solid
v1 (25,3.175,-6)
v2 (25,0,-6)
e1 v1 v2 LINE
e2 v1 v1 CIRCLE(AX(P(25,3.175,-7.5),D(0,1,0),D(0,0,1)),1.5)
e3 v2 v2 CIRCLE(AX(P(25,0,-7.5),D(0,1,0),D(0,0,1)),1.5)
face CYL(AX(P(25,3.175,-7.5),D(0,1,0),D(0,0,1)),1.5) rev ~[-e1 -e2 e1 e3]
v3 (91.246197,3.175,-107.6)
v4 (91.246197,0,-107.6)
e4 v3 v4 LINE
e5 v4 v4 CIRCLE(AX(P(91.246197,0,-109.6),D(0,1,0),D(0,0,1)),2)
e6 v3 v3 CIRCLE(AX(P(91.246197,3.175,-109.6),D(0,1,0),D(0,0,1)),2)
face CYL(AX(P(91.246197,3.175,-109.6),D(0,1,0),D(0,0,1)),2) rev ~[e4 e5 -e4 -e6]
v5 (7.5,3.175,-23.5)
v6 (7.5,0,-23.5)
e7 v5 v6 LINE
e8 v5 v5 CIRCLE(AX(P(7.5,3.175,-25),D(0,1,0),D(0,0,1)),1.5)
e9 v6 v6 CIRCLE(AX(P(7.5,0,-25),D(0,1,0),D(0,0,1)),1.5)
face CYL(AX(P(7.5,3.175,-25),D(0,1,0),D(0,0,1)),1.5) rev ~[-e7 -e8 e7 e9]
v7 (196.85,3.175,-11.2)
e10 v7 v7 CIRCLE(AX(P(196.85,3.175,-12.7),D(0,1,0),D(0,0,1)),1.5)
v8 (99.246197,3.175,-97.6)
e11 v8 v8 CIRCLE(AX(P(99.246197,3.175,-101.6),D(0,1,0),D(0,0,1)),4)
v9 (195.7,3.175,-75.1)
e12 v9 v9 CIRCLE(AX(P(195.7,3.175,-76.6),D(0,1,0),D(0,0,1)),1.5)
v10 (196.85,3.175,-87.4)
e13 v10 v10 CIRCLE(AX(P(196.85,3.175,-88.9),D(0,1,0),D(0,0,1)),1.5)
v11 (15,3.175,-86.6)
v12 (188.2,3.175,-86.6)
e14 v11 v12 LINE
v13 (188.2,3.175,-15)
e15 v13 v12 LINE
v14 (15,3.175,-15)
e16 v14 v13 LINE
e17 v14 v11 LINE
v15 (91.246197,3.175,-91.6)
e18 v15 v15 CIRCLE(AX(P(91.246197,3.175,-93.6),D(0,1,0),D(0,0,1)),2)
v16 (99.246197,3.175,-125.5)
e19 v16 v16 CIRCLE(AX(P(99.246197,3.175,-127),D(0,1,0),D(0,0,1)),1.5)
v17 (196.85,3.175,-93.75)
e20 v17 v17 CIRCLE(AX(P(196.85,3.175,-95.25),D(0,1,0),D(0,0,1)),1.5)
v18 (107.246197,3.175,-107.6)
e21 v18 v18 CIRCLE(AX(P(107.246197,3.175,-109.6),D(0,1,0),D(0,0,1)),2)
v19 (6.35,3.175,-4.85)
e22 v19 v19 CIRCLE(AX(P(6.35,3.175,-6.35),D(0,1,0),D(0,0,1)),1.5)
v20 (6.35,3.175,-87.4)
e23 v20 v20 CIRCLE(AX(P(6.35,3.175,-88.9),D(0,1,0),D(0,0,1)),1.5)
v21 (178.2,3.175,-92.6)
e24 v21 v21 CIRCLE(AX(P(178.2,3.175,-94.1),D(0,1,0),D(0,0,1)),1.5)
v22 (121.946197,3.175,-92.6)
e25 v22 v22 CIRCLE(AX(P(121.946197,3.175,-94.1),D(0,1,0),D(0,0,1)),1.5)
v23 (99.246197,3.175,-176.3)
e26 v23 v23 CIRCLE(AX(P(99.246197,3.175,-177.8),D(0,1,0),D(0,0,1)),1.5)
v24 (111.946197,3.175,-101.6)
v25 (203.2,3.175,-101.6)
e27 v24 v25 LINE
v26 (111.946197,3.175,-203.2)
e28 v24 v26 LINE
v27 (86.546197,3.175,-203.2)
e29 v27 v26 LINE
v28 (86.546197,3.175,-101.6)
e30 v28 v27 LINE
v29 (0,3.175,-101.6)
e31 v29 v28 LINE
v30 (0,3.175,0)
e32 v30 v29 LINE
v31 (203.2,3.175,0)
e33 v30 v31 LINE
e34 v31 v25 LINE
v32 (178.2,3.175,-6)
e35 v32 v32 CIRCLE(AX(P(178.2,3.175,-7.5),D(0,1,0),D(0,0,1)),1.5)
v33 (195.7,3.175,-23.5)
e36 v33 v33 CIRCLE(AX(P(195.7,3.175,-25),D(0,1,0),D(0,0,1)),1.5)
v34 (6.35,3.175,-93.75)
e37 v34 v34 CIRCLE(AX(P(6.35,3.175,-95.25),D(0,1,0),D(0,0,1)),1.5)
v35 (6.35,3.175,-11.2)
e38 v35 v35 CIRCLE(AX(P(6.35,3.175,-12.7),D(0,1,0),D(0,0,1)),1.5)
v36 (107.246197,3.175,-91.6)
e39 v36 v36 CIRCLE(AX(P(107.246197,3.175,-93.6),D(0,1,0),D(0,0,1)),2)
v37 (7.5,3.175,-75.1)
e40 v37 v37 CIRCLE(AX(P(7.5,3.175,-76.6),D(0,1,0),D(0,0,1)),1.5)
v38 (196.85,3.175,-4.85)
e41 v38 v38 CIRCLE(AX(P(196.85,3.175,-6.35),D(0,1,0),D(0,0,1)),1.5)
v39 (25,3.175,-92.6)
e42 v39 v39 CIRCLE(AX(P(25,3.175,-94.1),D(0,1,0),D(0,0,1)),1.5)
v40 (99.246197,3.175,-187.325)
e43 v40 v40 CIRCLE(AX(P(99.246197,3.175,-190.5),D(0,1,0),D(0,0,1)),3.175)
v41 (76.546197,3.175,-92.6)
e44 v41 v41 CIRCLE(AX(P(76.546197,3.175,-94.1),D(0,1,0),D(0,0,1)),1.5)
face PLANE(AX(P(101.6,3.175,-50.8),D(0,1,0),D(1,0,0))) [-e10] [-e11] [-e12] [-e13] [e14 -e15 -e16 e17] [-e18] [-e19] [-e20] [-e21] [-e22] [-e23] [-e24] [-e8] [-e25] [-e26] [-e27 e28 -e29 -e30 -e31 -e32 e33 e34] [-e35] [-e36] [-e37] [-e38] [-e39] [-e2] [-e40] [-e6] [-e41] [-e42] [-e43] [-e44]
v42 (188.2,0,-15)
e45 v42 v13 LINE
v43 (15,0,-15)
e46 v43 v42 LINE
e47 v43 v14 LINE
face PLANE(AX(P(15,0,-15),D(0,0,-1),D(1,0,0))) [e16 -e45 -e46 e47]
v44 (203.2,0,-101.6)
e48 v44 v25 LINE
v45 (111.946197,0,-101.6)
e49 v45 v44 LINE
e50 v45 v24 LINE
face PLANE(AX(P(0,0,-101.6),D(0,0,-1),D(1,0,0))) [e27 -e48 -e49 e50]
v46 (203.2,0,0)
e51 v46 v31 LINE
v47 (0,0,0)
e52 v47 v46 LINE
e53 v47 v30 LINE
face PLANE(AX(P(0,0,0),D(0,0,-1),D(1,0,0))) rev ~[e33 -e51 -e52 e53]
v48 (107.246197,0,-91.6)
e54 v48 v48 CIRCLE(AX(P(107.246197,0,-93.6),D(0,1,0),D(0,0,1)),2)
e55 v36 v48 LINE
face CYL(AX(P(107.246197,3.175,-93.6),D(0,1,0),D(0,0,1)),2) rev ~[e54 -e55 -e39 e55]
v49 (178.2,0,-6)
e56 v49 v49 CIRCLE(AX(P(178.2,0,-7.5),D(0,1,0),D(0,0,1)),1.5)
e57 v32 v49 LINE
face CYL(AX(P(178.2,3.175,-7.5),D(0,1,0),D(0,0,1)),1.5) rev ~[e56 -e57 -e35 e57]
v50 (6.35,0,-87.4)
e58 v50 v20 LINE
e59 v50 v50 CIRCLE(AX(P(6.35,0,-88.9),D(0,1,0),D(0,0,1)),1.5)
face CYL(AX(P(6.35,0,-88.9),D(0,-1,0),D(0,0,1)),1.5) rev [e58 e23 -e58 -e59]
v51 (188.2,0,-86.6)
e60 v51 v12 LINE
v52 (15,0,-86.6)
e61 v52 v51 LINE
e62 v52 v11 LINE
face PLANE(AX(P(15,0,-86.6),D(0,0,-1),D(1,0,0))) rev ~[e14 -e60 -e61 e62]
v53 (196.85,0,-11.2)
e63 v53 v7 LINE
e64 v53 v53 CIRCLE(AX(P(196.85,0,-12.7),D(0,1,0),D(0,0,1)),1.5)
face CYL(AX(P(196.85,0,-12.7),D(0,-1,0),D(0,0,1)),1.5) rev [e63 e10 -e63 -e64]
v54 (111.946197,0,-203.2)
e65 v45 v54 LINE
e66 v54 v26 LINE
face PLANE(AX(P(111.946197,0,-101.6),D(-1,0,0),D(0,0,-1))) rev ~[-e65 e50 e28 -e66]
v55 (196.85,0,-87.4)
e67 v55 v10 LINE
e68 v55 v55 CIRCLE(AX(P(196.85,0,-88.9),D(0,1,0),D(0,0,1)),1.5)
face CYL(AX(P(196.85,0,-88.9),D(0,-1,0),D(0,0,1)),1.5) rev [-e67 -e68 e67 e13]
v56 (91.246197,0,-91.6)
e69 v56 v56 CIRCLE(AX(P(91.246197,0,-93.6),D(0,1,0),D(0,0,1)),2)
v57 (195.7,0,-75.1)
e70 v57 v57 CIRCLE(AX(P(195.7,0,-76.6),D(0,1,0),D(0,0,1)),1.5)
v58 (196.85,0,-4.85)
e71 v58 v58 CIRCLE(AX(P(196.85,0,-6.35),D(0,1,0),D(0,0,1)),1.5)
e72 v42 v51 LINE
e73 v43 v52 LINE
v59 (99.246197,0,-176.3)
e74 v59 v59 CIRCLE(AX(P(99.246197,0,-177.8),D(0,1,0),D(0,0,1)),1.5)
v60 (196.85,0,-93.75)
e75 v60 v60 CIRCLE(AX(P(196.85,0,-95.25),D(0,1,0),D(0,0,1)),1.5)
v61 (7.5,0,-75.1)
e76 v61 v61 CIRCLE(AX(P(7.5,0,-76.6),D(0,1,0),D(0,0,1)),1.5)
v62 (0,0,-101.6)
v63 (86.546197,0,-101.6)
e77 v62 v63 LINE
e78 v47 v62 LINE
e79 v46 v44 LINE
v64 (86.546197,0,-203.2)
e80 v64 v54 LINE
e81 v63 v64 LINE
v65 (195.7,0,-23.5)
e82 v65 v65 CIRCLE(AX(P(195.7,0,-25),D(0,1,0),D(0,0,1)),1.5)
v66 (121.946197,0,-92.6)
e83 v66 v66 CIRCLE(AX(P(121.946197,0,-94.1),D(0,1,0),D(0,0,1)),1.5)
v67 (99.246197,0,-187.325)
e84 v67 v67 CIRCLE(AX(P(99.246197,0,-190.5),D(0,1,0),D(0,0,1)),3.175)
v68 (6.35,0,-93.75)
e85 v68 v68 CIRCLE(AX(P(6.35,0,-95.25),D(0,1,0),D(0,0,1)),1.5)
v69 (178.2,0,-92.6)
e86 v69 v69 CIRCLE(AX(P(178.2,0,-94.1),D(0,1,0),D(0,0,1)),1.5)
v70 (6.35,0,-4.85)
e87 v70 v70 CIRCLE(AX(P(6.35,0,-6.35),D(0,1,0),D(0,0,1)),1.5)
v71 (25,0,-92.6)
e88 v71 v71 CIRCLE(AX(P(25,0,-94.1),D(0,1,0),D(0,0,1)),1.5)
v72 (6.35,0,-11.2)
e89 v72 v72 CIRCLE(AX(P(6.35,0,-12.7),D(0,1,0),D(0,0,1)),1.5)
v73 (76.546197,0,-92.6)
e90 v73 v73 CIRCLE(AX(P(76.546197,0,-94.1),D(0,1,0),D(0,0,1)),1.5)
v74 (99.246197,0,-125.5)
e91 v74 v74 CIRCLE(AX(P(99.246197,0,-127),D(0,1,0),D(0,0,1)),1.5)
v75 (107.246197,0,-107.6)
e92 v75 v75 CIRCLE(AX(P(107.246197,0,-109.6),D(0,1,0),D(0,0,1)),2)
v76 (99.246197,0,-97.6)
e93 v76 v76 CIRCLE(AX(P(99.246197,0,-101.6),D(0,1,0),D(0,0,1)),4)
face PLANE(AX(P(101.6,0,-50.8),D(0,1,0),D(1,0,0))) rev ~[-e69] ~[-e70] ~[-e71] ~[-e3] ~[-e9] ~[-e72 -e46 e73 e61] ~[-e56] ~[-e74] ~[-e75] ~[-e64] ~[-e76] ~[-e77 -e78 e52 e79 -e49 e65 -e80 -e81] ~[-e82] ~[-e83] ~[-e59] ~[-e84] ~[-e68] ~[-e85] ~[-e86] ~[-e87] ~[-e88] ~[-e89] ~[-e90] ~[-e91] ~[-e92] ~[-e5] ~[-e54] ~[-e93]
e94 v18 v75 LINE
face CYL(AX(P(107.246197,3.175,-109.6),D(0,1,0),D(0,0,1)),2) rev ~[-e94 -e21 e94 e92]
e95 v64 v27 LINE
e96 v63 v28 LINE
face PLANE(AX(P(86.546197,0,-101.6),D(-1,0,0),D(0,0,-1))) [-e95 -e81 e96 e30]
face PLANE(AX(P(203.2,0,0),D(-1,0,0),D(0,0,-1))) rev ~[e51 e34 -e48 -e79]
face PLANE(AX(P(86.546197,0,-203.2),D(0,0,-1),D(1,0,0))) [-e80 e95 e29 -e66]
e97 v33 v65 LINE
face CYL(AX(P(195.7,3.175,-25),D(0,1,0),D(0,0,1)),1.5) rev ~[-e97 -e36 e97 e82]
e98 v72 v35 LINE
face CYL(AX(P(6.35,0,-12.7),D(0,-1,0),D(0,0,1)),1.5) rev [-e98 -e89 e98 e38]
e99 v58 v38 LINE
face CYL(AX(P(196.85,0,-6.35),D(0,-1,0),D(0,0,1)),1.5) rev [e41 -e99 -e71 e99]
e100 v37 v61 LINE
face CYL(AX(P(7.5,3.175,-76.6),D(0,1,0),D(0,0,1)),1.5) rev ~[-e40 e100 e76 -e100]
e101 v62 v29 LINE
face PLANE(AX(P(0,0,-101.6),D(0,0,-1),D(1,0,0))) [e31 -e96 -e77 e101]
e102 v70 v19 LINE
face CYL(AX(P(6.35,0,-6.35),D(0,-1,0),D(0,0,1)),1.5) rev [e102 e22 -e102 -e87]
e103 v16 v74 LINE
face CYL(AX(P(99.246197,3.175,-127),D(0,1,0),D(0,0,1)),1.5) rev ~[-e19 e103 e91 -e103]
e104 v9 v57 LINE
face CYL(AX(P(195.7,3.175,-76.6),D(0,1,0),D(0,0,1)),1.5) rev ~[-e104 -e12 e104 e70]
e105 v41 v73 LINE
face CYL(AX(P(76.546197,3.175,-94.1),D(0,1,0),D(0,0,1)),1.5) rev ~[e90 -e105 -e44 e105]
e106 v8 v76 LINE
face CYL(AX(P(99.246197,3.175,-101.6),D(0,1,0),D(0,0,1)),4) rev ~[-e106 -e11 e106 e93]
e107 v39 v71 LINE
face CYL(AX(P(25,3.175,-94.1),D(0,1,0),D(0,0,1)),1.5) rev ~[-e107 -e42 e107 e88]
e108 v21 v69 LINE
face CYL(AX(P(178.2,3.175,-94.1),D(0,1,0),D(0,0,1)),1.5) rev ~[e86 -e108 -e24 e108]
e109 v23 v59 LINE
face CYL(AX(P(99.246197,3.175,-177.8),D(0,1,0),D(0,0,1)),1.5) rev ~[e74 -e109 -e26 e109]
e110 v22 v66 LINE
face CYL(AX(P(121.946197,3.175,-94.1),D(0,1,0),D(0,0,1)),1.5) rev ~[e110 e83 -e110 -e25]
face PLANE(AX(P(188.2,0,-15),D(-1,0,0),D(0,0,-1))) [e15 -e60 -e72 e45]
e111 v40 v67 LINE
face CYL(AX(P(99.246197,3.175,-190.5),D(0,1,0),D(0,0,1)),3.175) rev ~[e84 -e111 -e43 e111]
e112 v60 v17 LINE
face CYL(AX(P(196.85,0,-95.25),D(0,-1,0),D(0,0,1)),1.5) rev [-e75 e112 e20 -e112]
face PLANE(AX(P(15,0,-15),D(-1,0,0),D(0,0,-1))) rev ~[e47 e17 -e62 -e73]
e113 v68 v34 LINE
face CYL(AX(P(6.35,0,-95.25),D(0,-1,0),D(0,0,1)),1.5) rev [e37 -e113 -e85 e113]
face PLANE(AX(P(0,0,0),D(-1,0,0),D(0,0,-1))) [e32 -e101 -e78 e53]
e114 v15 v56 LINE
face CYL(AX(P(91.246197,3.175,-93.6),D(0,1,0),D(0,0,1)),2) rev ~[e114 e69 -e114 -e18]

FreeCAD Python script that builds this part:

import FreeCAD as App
import Part
import Sketcher
from FreeCAD import Vector

doc = App.newDocument("Part")
body = doc.addObject("PartDesign::Body", "Body")

# Sketch on XZ plane
sketch1 = body.newObject("Sketcher::SketchObject", "Sketch")
sketch1.AttachmentSupport = (doc.getObject("XZ_Plane"), [""])
sketch1.MapMode = "FlatFace"
sketch1.addGeometry([
    Part.LineSegment(Vector(0, -101.6, 0), Vector(0, 0, 0)),  # 0
    Part.LineSegment(Vector(0, 0, 0), Vector(203.2, 0, 0)),  # 1
    Part.LineSegment(Vector(203.2, 0, 0), Vector(203.2, -101.6, 0)),  # 2
    Part.LineSegment(Vector(203.2, -101.6, 0), Vector(111.9, -101.6, 0)),  # 3
    Part.LineSegment(Vector(111.9, -101.6, 0), Vector(111.9, -203.2, 0)),  # 4
    Part.LineSegment(Vector(111.9, -203.2, 0), Vector(86.5, -203.2, 0)),  # 5
    Part.LineSegment(Vector(86.5, -203.2, 0), Vector(86.5, -101.6, 0)),  # 6
    Part.LineSegment(Vector(86.5, -101.6, 0), Vector(0, -101.6, 0)),  # 7
    Part.Circle(Vector(6.3, -6.3, 0), Vector(0, 0, 1), 1.5),  # 8
    Part.Circle(Vector(6.3, -12.7, 0), Vector(0, 0, 1), 1.5),  # 9
    Part.Circle(Vector(196.8, -6.3, 0), Vector(0, 0, 1), 1.5),  # 10
    Part.Circle(Vector(196.8, -12.7, 0), Vector(0, 0, 1), 1.5),  # 11
    Part.LineSegment(Vector(188.2, -15, 0), Vector(15, -15, 0)),  # 12
    Part.LineSegment(Vector(15, -15, 0), Vector(15, -86.6, 0)),  # 13
    Part.LineSegment(Vector(15, -86.6, 0), Vector(188.2, -86.6, 0)),  # 14
    Part.LineSegment(Vector(188.2, -86.6, 0), Vector(188.2, -15, 0)),  # 15
    Part.Circle(Vector(6.3, -88.9, 0), Vector(0, 0, 1), 1.5),  # 16
    Part.Circle(Vector(6.3, -95.2, 0), Vector(0, 0, 1), 1.5),  # 17
    Part.Circle(Vector(196.8, -88.9, 0), Vector(0, 0, 1), 1.5),  # 18
    Part.Circle(Vector(196.8, -95.2, 0), Vector(0, 0, 1), 1.5),  # 19
], False)
sketch1.addConstraint([
    Sketcher.Constraint("Coincident", 0, 2, 1, 1),
    Sketcher.Constraint("Coincident", 1, 2, 2, 1),
    Sketcher.Constraint("Coincident", 2, 2, 3, 1),
    Sketcher.Constraint("Coincident", 3, 2, 4, 1),
    Sketcher.Constraint("Coincident", 4, 2, 5, 1),
    Sketcher.Constraint("Coincident", 5, 2, 6, 1),
    Sketcher.Constraint("Coincident", 6, 2, 7, 1),
    Sketcher.Constraint("Coincident", 7, 2, 0, 1),
    Sketcher.Constraint("Coincident", 12, 2, 13, 1),
    Sketcher.Constraint("Coincident", 13, 2, 14, 1),
    Sketcher.Constraint("Coincident", 14, 2, 15, 1),
    Sketcher.Constraint("Coincident", 15, 2, 12, 1),
    Sketcher.Constraint("Vertical", 0),
    Sketcher.Constraint("Horizontal", 1),
    Sketcher.Constraint("Vertical", 2),
    Sketcher.Constraint("Horizontal", 3),
    Sketcher.Constraint("Vertical", 4),
    Sketcher.Constraint("Horizontal", 5),
    Sketcher.Constraint("Vertical", 6),
    Sketcher.Constraint("Horizontal", 7),
    Sketcher.Constraint("Horizontal", 12),
    Sketcher.Constraint("Vertical", 13),
    Sketcher.Constraint("Horizontal", 14),
    Sketcher.Constraint("Vertical", 15),
    Sketcher.Constraint("Coincident", 0, 2, -1, 1),
    Sketcher.Constraint("Equal", 8, 9),
    Sketcher.Constraint("Equal", 9, 10),
    Sketcher.Constraint("Equal", 10, 11),
    Sketcher.Constraint("Equal", 11, 16),
    Sketcher.Constraint("Equal", 16, 17),
    Sketcher.Constraint("Equal", 17, 18),
    Sketcher.Constraint("Equal", 18, 19),
    Sketcher.Constraint("Horizontal", 8, 3, 10, 3),
    Sketcher.Constraint("Horizontal", 9, 3, 11, 3),
    Sketcher.Constraint("Horizontal", 16, 3, 18, 3),
    Sketcher.Constraint("Horizontal", 17, 3, 19, 3),
    Sketcher.Constraint("Horizontal", 3, 2, 6, 2),
    Sketcher.Constraint("Vertical", 8, 3, 9, 3),
    Sketcher.Constraint("Vertical", 10, 3, 11, 3),
    Sketcher.Constraint("Vertical", 9, 3, 16, 3),
    Sketcher.Constraint("Vertical", 16, 3, 17, 3),
    Sketcher.Constraint("Vertical", 11, 3, 18, 3),
    Sketcher.Constraint("Vertical", 18, 3, 19, 3),
    Sketcher.Constraint("Equal", 2, 4),
    Sketcher.Constraint("Diameter", 8, 3.0),
    Sketcher.Constraint("DistanceX", 1, 1, 1, 2, 203.2),
    Sketcher.Constraint("DistanceX", 5, 2, 5, 1, 25.4),
    Sketcher.Constraint("DistanceX", 12, 2, 12, 1, 173.2),
    Sketcher.Constraint("DistanceY", 0, 1, 0, 2, 101.6),
    Sketcher.Constraint("DistanceY", 13, 2, 13, 1, 71.6),
    Sketcher.Constraint("DistanceX", -1, 1, 12, 2, 15.0),
    Sketcher.Constraint("DistanceY", 12, 2, -1, 1, 15.0),
    Sketcher.Constraint("DistanceY", 9, 3, -1, 1, 12.7),
    Sketcher.Constraint("DistanceY", 16, 3, -1, 1, 88.9),
    Sketcher.Constraint("DistanceX", 8, 3, 10, 3, 190.5),
    Sketcher.Constraint("DistanceY", 17, 3, 8, 3, 88.9),
    Sketcher.Constraint("DistanceX", -1, 1, 8, 3, 6.35),
    Sketcher.Constraint("DistanceY", 8, 3, -1, 1, 6.35),
    Sketcher.Constraint("DistanceX", 3, 2, 3, 1, 91.253803),
])
pad1 = body.newObject("PartDesign::Pad", "Pad")
pad1.Profile = sketch1
pad1.Length = 3.175
pad1.Reversed = True

# Sketch on XZ plane
sketch2 = body.newObject("Sketcher::SketchObject", "Sketch001")
sketch2.AttachmentSupport = (doc.getObject("XZ_Plane"), [""])
sketch2.MapMode = "FlatFace"
sketch2.AttachmentOffset = App.Placement(Vector(0, 0, -3.175), App.Rotation())
sketch2.addGeometry([
    Part.Circle(Vector(91.2, -109.6, 0), Vector(0, 0, 1), 2),  # 0
    Part.Circle(Vector(107.2, -109.6, 0), Vector(0, 0, 1), 2),  # 1
    Part.Circle(Vector(91.2, -93.6, 0), Vector(0, 0, 1), 2),  # 2
    Part.Circle(Vector(107.2, -93.6, 0), Vector(0, 0, 1), 2),  # 3
    Part.Circle(Vector(99.2, -101.6, 0), Vector(0, 0, 1), 4),  # 4
], False)
sketch2.addConstraint([
    Sketcher.Constraint("Equal", 0, 1),
    Sketcher.Constraint("Equal", 1, 2),
    Sketcher.Constraint("Equal", 2, 3),
    Sketcher.Constraint("Horizontal", 0, 3, 1, 3),
    Sketcher.Constraint("Horizontal", 2, 3, 3, 3),
    Sketcher.Constraint("Vertical", 0, 3, 2, 3),
    Sketcher.Constraint("Vertical", 1, 3, 3, 3),
    Sketcher.Constraint("Diameter", 0, 4.0),
    Sketcher.Constraint("Diameter", 4, 8.0),
    Sketcher.Constraint("DistanceX", 0, 3, 1, 3, 16.0),
    Sketcher.Constraint("DistanceY", 0, 3, 2, 3, 16.0),
    Sketcher.Constraint("DistanceX", 0, 3, 4, 3, 8.0),
    Sketcher.Constraint("DistanceY", 0, 3, 4, 3, 8.0),
    Sketcher.Constraint("DistanceY", 0, 3, -1, 1, 109.6),
    Sketcher.Constraint("DistanceX", -1, 1, 0, 3, 91.246197),
])
pocket1 = body.newObject("PartDesign::Pocket", "Pocket")
pocket1.Profile = sketch2
pocket1.Length = 3.175
pocket1.Reversed = True

# Sketch on XZ plane
sketch3 = body.newObject("Sketcher::SketchObject", "Sketch002")
sketch3.AttachmentSupport = (doc.getObject("XZ_Plane"), [""])
sketch3.MapMode = "FlatFace"
sketch3.AttachmentOffset = App.Placement(Vector(0, 0, -3.175), App.Rotation())
sketch3.addGeometry([
    Part.Circle(Vector(178.2, -94.1, 0), Vector(0, 0, 1), 1.5),  # 0
    Part.Circle(Vector(25, -94.1, 0), Vector(0, 0, 1), 1.5),  # 1
    Part.Circle(Vector(76.5, -94.1, 0), Vector(0, 0, 1), 1.5),  # 2
    Part.Circle(Vector(121.9, -94.1, 0), Vector(0, 0, 1), 1.5),  # 3
    Part.Circle(Vector(178.2, -7.5, 0), Vector(0, 0, 1), 1.5),  # 4
    Part.Circle(Vector(25, -7.5, 0), Vector(0, 0, 1), 1.5),  # 5
    Part.Circle(Vector(195.7, -76.6, 0), Vector(0, 0, 1), 1.5),  # 6
    Part.Circle(Vector(195.7, -25, 0), Vector(0, 0, 1), 1.5),  # 7
    Part.Circle(Vector(7.5, -76.6, 0), Vector(0, 0, 1), 1.5),  # 8
    Part.Circle(Vector(7.5, -25, 0), Vector(0, 0, 1), 1.5),  # 9
], False)
sketch3.addConstraint([
    Sketcher.Constraint("Equal", 0, 1),
    Sketcher.Constraint("Equal", 1, 2),
    Sketcher.Constraint("Equal", 2, 3),
    Sketcher.Constraint("Equal", 3, 4),
    Sketcher.Constraint("Equal", 4, 5),
    Sketcher.Constraint("Equal", 5, 6),
    Sketcher.Constraint("Equal", 6, 7),
    Sketcher.Constraint("Equal", 7, 8),
    Sketcher.Constraint("Equal", 8, 9),
    Sketcher.Constraint("Horizontal", 0, 3, 1, 3),
    Sketcher.Constraint("Horizontal", 1, 3, 2, 3),
    Sketcher.Constraint("Horizontal", 2, 3, 3, 3),
    Sketcher.Constraint("Horizontal", 4, 3, 5, 3),
    Sketcher.Constraint("Horizontal", 6, 3, 8, 3),
    Sketcher.Constraint("Horizontal", 7, 3, 9, 3),
    Sketcher.Constraint("Vertical", 0, 3, 4, 3),
    Sketcher.Constraint("Vertical", 1, 3, 5, 3),
    Sketcher.Constraint("Vertical", 6, 3, 7, 3),
    Sketcher.Constraint("Vertical", 8, 3, 9, 3),
    Sketcher.Constraint("Diameter", 0, 3.0),
    Sketcher.Constraint("DistanceX", -1, 1, 1, 3, 25.0),
    Sketcher.Constraint("DistanceY", 7, 3, -1, 1, 25.0),
    Sketcher.Constraint("DistanceX", -1, 1, 0, 3, 178.2),
    Sketcher.Constraint("DistanceY", 0, 3, -1, 1, 94.1),
    Sketcher.Constraint("DistanceY", 4, 3, -1, 1, 7.5),
    Sketcher.Constraint("DistanceX", -1, 1, 6, 3, 195.7),
    Sketcher.Constraint("DistanceY", 6, 3, -1, 1, 76.6),
    Sketcher.Constraint("DistanceX", -1, 1, 8, 3, 7.5),
    Sketcher.Constraint("DistanceX", 2, 3, 3, 3, 45.4),
    Sketcher.Constraint("DistanceX", -1, 1, 2, 3, 76.546197),
])
pocket2 = body.newObject("PartDesign::Pocket", "Pocket001")
pocket2.Profile = sketch3
pocket2.Length = 10
pocket2.Reversed = True

# Sketch on XZ plane
sketch4 = body.newObject("Sketcher::SketchObject", "Sketch003")
sketch4.AttachmentSupport = (doc.getObject("XZ_Plane"), [""])
sketch4.MapMode = "FlatFace"
sketch4.AttachmentOffset = App.Placement(Vector(0, 0, -3.175), App.Rotation())
sketch4.addGeometry(Part.Circle(Vector(99.2, -190.5, 0), Vector(0, 0, 1), 3.2), False)
sketch4.addConstraint([
    Sketcher.Constraint("Diameter", 0, 6.35),
    Sketcher.Constraint("DistanceY", 0, 3, -1, 1, 190.5),
    Sketcher.Constraint("DistanceX", -1, 1, 0, 3, 99.246197),
])
pocket3 = body.newObject("PartDesign::Pocket", "Pocket002")
pocket3.Profile = sketch4
pocket3.Length = 10
pocket3.Reversed = True

# Sketch on XZ plane
sketch5 = body.newObject("Sketcher::SketchObject", "Sketch004")
sketch5.AttachmentSupport = (doc.getObject("XZ_Plane"), [""])
sketch5.MapMode = "FlatFace"
sketch5.AttachmentOffset = App.Placement(Vector(0, 0, -3.175), App.Rotation())
sketch5.addGeometry([
    Part.Circle(Vector(99.2, -177.8, 0), Vector(0, 0, 1), 1.5),
    Part.Circle(Vector(99.2, -127, 0), Vector(0, 0, 1), 1.5),
], False)
sketch5.addConstraint([
    Sketcher.Constraint("Equal", 0, 1),
    Sketcher.Constraint("Vertical", 0, 3, 1, 3),
    Sketcher.Constraint("Diameter", 0, 3.0),
    Sketcher.Constraint("DistanceY", 1, 3, -1, 1, 127.0),
    Sketcher.Constraint("DistanceY", 0, 3, -1, 1, 177.8),
    Sketcher.Constraint("DistanceX", -1, 1, 0, 3, 99.246197),
])
pocket4 = body.newObject("PartDesign::Pocket", "Pocket003")
pocket4.Profile = sketch5
pocket4.Length = 10
pocket4.Reversed = True

doc.recompute()
